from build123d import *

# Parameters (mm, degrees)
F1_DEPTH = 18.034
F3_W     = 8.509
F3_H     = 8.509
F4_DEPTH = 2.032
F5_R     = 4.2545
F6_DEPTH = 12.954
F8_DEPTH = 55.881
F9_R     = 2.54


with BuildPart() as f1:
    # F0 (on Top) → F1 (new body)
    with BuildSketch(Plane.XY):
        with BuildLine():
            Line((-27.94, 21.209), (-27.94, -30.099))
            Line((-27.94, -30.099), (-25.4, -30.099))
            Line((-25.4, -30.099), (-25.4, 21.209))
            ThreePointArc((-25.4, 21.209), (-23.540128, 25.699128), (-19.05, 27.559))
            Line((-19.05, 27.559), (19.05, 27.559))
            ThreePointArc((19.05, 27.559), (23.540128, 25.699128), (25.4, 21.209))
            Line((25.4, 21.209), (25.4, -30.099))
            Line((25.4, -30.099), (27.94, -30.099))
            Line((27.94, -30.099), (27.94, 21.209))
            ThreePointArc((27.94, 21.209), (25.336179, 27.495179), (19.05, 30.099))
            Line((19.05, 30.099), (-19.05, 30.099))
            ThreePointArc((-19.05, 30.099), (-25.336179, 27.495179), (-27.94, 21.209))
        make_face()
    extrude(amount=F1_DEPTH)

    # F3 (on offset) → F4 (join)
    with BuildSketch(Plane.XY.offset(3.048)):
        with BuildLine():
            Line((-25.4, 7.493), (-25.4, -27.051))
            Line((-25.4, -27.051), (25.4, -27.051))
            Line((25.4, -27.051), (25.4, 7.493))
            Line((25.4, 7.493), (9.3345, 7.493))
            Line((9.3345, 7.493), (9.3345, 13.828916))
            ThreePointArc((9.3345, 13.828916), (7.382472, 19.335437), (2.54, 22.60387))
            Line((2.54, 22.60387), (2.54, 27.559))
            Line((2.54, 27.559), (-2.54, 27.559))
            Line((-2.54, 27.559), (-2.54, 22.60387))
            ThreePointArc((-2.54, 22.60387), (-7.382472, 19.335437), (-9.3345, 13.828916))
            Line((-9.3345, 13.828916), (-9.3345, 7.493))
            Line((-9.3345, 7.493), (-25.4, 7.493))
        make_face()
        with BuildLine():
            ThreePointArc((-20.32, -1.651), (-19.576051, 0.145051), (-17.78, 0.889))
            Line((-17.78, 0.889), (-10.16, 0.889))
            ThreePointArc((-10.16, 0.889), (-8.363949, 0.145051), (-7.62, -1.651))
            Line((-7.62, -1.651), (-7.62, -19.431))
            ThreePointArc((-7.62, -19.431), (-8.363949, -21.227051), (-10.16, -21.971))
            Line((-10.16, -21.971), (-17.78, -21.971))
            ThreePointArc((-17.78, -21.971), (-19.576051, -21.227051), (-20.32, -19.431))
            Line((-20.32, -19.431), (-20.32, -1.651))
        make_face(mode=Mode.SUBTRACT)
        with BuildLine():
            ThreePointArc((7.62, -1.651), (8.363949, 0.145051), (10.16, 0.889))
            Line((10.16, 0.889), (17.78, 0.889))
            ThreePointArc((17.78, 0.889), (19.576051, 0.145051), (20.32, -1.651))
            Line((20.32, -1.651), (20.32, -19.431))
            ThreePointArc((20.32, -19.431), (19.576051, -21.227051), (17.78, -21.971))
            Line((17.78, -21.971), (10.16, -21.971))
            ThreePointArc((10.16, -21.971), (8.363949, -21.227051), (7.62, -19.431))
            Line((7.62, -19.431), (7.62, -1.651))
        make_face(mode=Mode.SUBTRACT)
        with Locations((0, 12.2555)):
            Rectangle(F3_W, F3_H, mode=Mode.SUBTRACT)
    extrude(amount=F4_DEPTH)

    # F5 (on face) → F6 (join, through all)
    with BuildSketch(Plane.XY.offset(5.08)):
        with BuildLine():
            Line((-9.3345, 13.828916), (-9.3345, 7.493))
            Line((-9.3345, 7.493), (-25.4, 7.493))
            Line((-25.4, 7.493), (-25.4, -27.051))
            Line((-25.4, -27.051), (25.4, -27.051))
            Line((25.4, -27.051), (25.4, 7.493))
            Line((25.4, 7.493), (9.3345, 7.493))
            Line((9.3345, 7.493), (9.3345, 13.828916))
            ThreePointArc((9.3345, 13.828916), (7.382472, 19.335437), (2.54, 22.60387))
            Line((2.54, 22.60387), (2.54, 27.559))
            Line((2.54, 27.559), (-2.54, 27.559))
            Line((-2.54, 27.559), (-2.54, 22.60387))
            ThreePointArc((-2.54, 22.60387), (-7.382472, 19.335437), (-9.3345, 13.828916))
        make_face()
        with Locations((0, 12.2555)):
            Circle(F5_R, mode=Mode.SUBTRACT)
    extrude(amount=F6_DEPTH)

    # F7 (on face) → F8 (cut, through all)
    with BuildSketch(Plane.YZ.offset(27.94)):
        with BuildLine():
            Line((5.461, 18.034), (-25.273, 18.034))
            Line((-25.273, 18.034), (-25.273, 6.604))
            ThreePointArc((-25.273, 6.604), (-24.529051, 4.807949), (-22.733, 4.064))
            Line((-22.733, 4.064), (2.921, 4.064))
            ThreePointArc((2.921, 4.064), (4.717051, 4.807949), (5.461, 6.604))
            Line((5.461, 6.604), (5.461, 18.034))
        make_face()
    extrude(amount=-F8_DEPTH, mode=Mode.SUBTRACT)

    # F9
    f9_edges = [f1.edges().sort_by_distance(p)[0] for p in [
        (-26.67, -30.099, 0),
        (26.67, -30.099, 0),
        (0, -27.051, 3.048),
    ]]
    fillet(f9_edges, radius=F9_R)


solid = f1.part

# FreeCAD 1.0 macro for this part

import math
import FreeCAD as App
import Part
import Sketcher

V = App.Vector
Q = App.Units.Quantity


def edges_at(feature, points):
    """Names of the edges that pass closest to the given points."""
    edges = feature.Shape.Edges
    near = lambda p: min(range(len(edges)), key=lambda i: edges[i].distToShape(Part.Vertex(*p))[0])
    return sorted({f"Edge{near(p) + 1}" for p in points})

doc = App.newDocument("Part")
body = doc.addObject("PartDesign::Body", "Body")

# Sketch on XY plane
sketch1 = body.newObject("Sketcher::SketchObject", "Sketch")
sketch1.AttachmentSupport = (doc.getObject("XY_Plane"), [""])
sketch1.MapMode = "FlatFace"
sketch1.addGeometry([
    Part.LineSegment(V(-27.9, 21.2, 0), V(-27.9, -30.1, 0)),  # 0
    Part.LineSegment(V(-27.9, -30.1, 0), V(-25.4, -30.1, 0)),  # 1
    Part.LineSegment(V(-25.4, -30.1, 0), V(-25.4, 21.2, 0)),  # 2
    Part.ArcOfCircle(Part.Circle(V(-19, 21.2, 0), V(0, 0, 1), 6.4), math.radians(90), math.radians(180)),  # 3
    Part.LineSegment(V(-19.1, 27.6, 0), V(19.1, 27.6, 0)),  # 4
    Part.ArcOfCircle(Part.Circle(V(19, 21.2, 0), V(0, 0, 1), 6.4), math.radians(0), math.radians(90)),  # 5
    Part.LineSegment(V(25.4, 21.2, 0), V(25.4, -30.1, 0)),  # 6
    Part.LineSegment(V(25.4, -30.1, 0), V(27.9, -30.1, 0)),  # 7
    Part.LineSegment(V(27.9, -30.1, 0), V(27.9, 21.2, 0)),  # 8
    Part.ArcOfCircle(Part.Circle(V(19, 21.2, 0), V(0, 0, 1), 8.9), math.radians(0), math.radians(90)),  # 9
    Part.LineSegment(V(19.1, 30.1, 0), V(-19.1, 30.1, 0)),  # 10
    Part.ArcOfCircle(Part.Circle(V(-19, 21.2, 0), V(0, 0, 1), 8.9), math.radians(90), math.radians(180)),  # 11
], False)
sketch1.addConstraint([
    Sketcher.Constraint("Coincident", 0, 2, 1, 1),
    Sketcher.Constraint("Coincident", 1, 2, 2, 1),
    Sketcher.Constraint("Tangent", 2, 2, 3, 2),
    Sketcher.Constraint("Tangent", 3, 1, 4, 1),
    Sketcher.Constraint("Tangent", 4, 2, 5, 2),
    Sketcher.Constraint("Tangent", 5, 1, 6, 1),
    Sketcher.Constraint("Coincident", 6, 2, 7, 1),
    Sketcher.Constraint("Coincident", 7, 2, 8, 1),
    Sketcher.Constraint("Tangent", 8, 2, 9, 1),
    Sketcher.Constraint("Tangent", 9, 2, 10, 1),
    Sketcher.Constraint("Tangent", 10, 2, 11, 1),
    Sketcher.Constraint("Tangent", 11, 2, 0, 1),
    Sketcher.Constraint("Vertical", 0),
    Sketcher.Constraint("Horizontal", 1),
    Sketcher.Constraint("Vertical", 2),
    Sketcher.Constraint("Horizontal", 4),
    Sketcher.Constraint("Vertical", 6),
    Sketcher.Constraint("Horizontal", 7),
    Sketcher.Constraint("Vertical", 8),
    Sketcher.Constraint("Horizontal", 10),
    Sketcher.Constraint("Coincident", 9, 3, 5, 3),
    Sketcher.Constraint("Coincident", 11, 3, 3, 3),
    Sketcher.Constraint("Equal", 3, 5),
    Sketcher.Constraint("Symmetric", 1, 2, 6, 2, -2),
    Sketcher.Constraint("Radius", 3, Q("0.25 in")),
    Sketcher.Constraint("Radius", 9, Q("0.35 in")),
    Sketcher.Constraint("DistanceX", 4, 1, 4, 2, Q("1.5 in")),
    Sketcher.Constraint("DistanceY", 0, 2, 0, 1, Q("2.02 in")),
    Sketcher.Constraint("DistanceY", -1, 1, 3, 3, Q("0.835 in")),
])
pad1 = body.newObject("PartDesign::Pad", "Pad")
pad1.Profile = sketch1
pad1.Length = Q("0.71 in")

# Sketch on XY plane
sketch2 = body.newObject("Sketcher::SketchObject", "Sketch001")
sketch2.AttachmentSupport = (doc.getObject("XY_Plane"), [""])
sketch2.MapMode = "FlatFace"
sketch2.AttachmentOffset = App.Placement(V(0, 0, 0.12 * 25.4), App.Rotation())
sketch2.addGeometry([
    Part.LineSegment(V(-25.4, 7.5, 0), V(-25.4, -27.1, 0)),  # 0
    Part.LineSegment(V(-25.4, -27.1, 0), V(25.4, -27.1, 0)),  # 1
    Part.LineSegment(V(25.4, -27.1, 0), V(25.4, 7.5, 0)),  # 2
    Part.LineSegment(V(25.4, 7.5, 0), V(9.3, 7.5, 0)),  # 3
    Part.LineSegment(V(9.3, 7.5, 0), V(9.3, 13.8, 0)),  # 4
    Part.ArcOfCircle(Part.Circle(V(0, 13.6, 0), V(0, 0, 1), 9.3), math.radians(1), math.radians(74)),  # 5
    Part.LineSegment(V(2.5, 22.6, 0), V(2.5, 27.6, 0)),  # 6
    Part.LineSegment(V(2.5, 27.6, 0), V(-2.5, 27.6, 0)),  # 7
    Part.LineSegment(V(-2.5, 27.6, 0), V(-2.5, 22.6, 0)),  # 8
    Part.ArcOfCircle(Part.Circle(V(0, 13.6, 0), V(0, 0, 1), 9.3), math.radians(106), math.radians(179)),  # 9
    Part.LineSegment(V(-9.3, 13.8, 0), V(-9.3, 7.5, 0)),  # 10
    Part.LineSegment(V(-9.3, 7.5, 0), V(-25.4, 7.5, 0)),  # 11
    Part.LineSegment(V(-20.3, -19.4, 0), V(-20.3, -1.7, 0)),  # 12
    Part.ArcOfCircle(Part.Circle(V(-17.8, -1.7, 0), V(0, 0, 1), 2.5), math.radians(90), math.radians(180)),  # 13
    Part.LineSegment(V(-17.8, 0.9, 0), V(-10.2, 0.9, 0)),  # 14
    Part.ArcOfCircle(Part.Circle(V(-10.2, -1.7, 0), V(0, 0, 1), 2.5), math.radians(0), math.radians(90)),  # 15
    Part.LineSegment(V(-7.6, -1.7, 0), V(-7.6, -19.4, 0)),  # 16
    Part.ArcOfCircle(Part.Circle(V(-10.2, -19.4, 0), V(0, 0, 1), 2.5), math.radians(-90), math.radians(0)),  # 17
    Part.LineSegment(V(-10.2, -22, 0), V(-17.8, -22, 0)),  # 18
    Part.ArcOfCircle(Part.Circle(V(-17.8, -19.4, 0), V(0, 0, 1), 2.5), math.radians(-180), math.radians(-90)),  # 19
    Part.LineSegment(V(7.6, -19.4, 0), V(7.6, -1.7, 0)),  # 20
    Part.ArcOfCircle(Part.Circle(V(10.2, -1.7, 0), V(0, 0, 1), 2.5), math.radians(90), math.radians(180)),  # 21
    Part.LineSegment(V(10.2, 0.9, 0), V(17.8, 0.9, 0)),  # 22
    Part.ArcOfCircle(Part.Circle(V(17.8, -1.7, 0), V(0, 0, 1), 2.5), math.radians(0), math.radians(90)),  # 23
    Part.LineSegment(V(20.3, -1.7, 0), V(20.3, -19.4, 0)),  # 24
    Part.ArcOfCircle(Part.Circle(V(17.8, -19.4, 0), V(0, 0, 1), 2.5), math.radians(-90), math.radians(0)),  # 25
    Part.LineSegment(V(17.8, -22, 0), V(10.2, -22, 0)),  # 26
    Part.ArcOfCircle(Part.Circle(V(10.2, -19.4, 0), V(0, 0, 1), 2.5), math.radians(-180), math.radians(-90)),  # 27
    Part.LineSegment(V(4.3, 8, 0), V(-4.3, 8, 0)),  # 28
    Part.LineSegment(V(-4.3, 8, 0), V(-4.3, 16.5, 0)),  # 29
    Part.LineSegment(V(-4.3, 16.5, 0), V(4.3, 16.5, 0)),  # 30
    Part.LineSegment(V(4.3, 16.5, 0), V(4.3, 8, 0)),  # 31
], False)
sketch2.addConstraint([
    Sketcher.Constraint("Coincident", 0, 2, 1, 1),
    Sketcher.Constraint("Coincident", 1, 2, 2, 1),
    Sketcher.Constraint("Coincident", 2, 2, 3, 1),
    Sketcher.Constraint("Coincident", 3, 2, 4, 1),
    Sketcher.Constraint("Coincident", 4, 2, 5, 1),
    Sketcher.Constraint("Coincident", 5, 2, 6, 1),
    Sketcher.Constraint("Coincident", 6, 2, 7, 1),
    Sketcher.Constraint("Coincident", 7, 2, 8, 1),
    Sketcher.Constraint("Coincident", 8, 2, 9, 1),
    Sketcher.Constraint("Coincident", 9, 2, 10, 1),
    Sketcher.Constraint("Coincident", 10, 2, 11, 1),
    Sketcher.Constraint("Coincident", 11, 2, 0, 1),
    Sketcher.Constraint("Tangent", 12, 2, 13, 2),
    Sketcher.Constraint("Tangent", 13, 1, 14, 1),
    Sketcher.Constraint("Tangent", 14, 2, 15, 2),
    Sketcher.Constraint("Tangent", 15, 1, 16, 1),
    Sketcher.Constraint("Tangent", 16, 2, 17, 2),
    Sketcher.Constraint("Tangent", 17, 1, 18, 1),
    Sketcher.Constraint("Tangent", 18, 2, 19, 2),
    Sketcher.Constraint("Tangent", 19, 1, 12, 1),
    Sketcher.Constraint("Tangent", 20, 2, 21, 2),
    Sketcher.Constraint("Tangent", 21, 1, 22, 1),
    Sketcher.Constraint("Tangent", 22, 2, 23, 2),
    Sketcher.Constraint("Tangent", 23, 1, 24, 1),
    Sketcher.Constraint("Tangent", 24, 2, 25, 2),
    Sketcher.Constraint("Tangent", 25, 1, 26, 1),
    Sketcher.Constraint("Tangent", 26, 2, 27, 2),
    Sketcher.Constraint("Tangent", 27, 1, 20, 1),
    Sketcher.Constraint("Coincident", 28, 2, 29, 1),
    Sketcher.Constraint("Coincident", 29, 2, 30, 1),
    Sketcher.Constraint("Coincident", 30, 2, 31, 1),
    Sketcher.Constraint("Coincident", 31, 2, 28, 1),
    Sketcher.Constraint("Vertical", 0),
    Sketcher.Constraint("Horizontal", 1),
    Sketcher.Constraint("Vertical", 2),
    Sketcher.Constraint("Horizontal", 3),
    Sketcher.Constraint("Vertical", 4),
    Sketcher.Constraint("Vertical", 6),
    Sketcher.Constraint("Horizontal", 7),
    Sketcher.Constraint("Vertical", 8),
    Sketcher.Constraint("Vertical", 10),
    Sketcher.Constraint("Horizontal", 11),
    Sketcher.Constraint("Vertical", 12),
    Sketcher.Constraint("Horizontal", 14),
    Sketcher.Constraint("Vertical", 16),
    Sketcher.Constraint("Horizontal", 18),
    Sketcher.Constraint("Vertical", 20),
    Sketcher.Constraint("Horizontal", 22),
    Sketcher.Constraint("Vertical", 24),
    Sketcher.Constraint("Horizontal", 26),
    Sketcher.Constraint("Horizontal", 28),
    Sketcher.Constraint("Vertical", 29),
    Sketcher.Constraint("Horizontal", 30),
    Sketcher.Constraint("Vertical", 31),
    Sketcher.Constraint("Coincident", 9, 3, 5, 3),
    Sketcher.Constraint("Equal", 5, 9),
    Sketcher.Constraint("Equal", 13, 15),
    Sketcher.Constraint("Equal", 15, 17),
    Sketcher.Constraint("Equal", 17, 19),
    Sketcher.Constraint("Equal", 19, 21),
    Sketcher.Constraint("Equal", 21, 23),
    Sketcher.Constraint("Equal", 23, 25),
    Sketcher.Constraint("Equal", 25, 27),
    Sketcher.Constraint("Symmetric", 15, 3, 21, 3, -2),
    Sketcher.Constraint("Symmetric", 19, 3, 25, 3, -2),
    Sketcher.Constraint("Symmetric", 5, 2, 8, 2, -2),
    Sketcher.Constraint("Symmetric", 3, 2, 10, 2, -2),
    Sketcher.Constraint("Equal", 3, 11),
    Sketcher.Constraint("Equal", 30, 29),
    Sketcher.Constraint("Radius", 13, Q("0.1 in")),
    Sketcher.Constraint("DistanceX", 1, 1, 1, 2, Q("2 in")),
    Sketcher.Constraint("DistanceX", 7, 2, 7, 1, Q("0.2 in")),
    Sketcher.Constraint("DistanceX", 14, 1, 14, 2, Q("0.3 in")),
    Sketcher.Constraint("DistanceY", 12, 1, 12, 2, Q("0.7 in")),
    Sketcher.Constraint("DistanceY", 0, 2, 13, 3, Q("1 in")),
    Sketcher.Constraint("DistanceY", 0, 2, 0, 1, Q("1.36 in")),
    Sketcher.Constraint("DistanceX", 13, 3, -1, 1, Q("0.7 in")),
    Sketcher.Constraint("DistanceX", 10, 2, 28, 2, Q("0.2 in")),
    Sketcher.Constraint("DistanceX", 30, 2, 4, 2, Q("0.2 in")),
    Sketcher.Constraint("DistanceX", 28, 2, 28, 1, Q("0.335 in")),
    Sketcher.Constraint("DistanceY", -1, 1, 29, 2, Q("0.65 in")),
    Sketcher.Constraint("DistanceY", 3, 2, 6, 2, Q("0.79 in")),
    Sketcher.Constraint("DistanceY", 10, 2, 28, 2, Q("0.02 in")),
    Sketcher.Constraint("Radius", 5, Q("9.336857 mm")),
    Sketcher.Constraint("DistanceY", 6, 1, 6, 2, Q("4.95513 mm")),
])
pad2 = body.newObject("PartDesign::Pad", "Pad001")
pad2.Profile = sketch2
pad2.Length = Q("0.08 in")

# Sketch on XY plane
sketch3 = body.newObject("Sketcher::SketchObject", "Sketch002")
sketch3.AttachmentSupport = (doc.getObject("XY_Plane"), [""])
sketch3.MapMode = "FlatFace"
sketch3.AttachmentOffset = App.Placement(V(0, 0, 0.2 * 25.4), App.Rotation())
sketch3.addGeometry([
    Part.LineSegment(V(-9.3, 13.8, 0), V(-9.3, 7.5, 0)),  # 0
    Part.LineSegment(V(-9.3, 7.5, 0), V(-25.4, 7.5, 0)),  # 1
    Part.LineSegment(V(-25.4, 7.5, 0), V(-25.4, -27.1, 0)),  # 2
    Part.LineSegment(V(-25.4, -27.1, 0), V(25.4, -27.1, 0)),  # 3
    Part.LineSegment(V(25.4, -27.1, 0), V(25.4, 7.5, 0)),  # 4
    Part.LineSegment(V(25.4, 7.5, 0), V(9.3, 7.5, 0)),  # 5
    Part.LineSegment(V(9.3, 7.5, 0), V(9.3, 13.8, 0)),  # 6
    Part.ArcOfCircle(Part.Circle(V(0, 13.6, 0), V(0, 0, 1), 9.3), math.radians(1), math.radians(74)),  # 7
    Part.LineSegment(V(2.5, 22.6, 0), V(2.5, 27.6, 0)),  # 8
    Part.LineSegment(V(2.5, 27.6, 0), V(-2.5, 27.6, 0)),  # 9
    Part.LineSegment(V(-2.5, 27.6, 0), V(-2.5, 22.6, 0)),  # 10
    Part.ArcOfCircle(Part.Circle(V(0, 13.6, 0), V(0, 0, 1), 9.3), math.radians(106), math.radians(179)),  # 11
    Part.Circle(V(0, 12.3, 0), V(0, 0, 1), 4.3),  # 12
], False)
sketch3.addConstraint([
    Sketcher.Constraint("Coincident", 0, 2, 1, 1),
    Sketcher.Constraint("Coincident", 1, 2, 2, 1),
    Sketcher.Constraint("Coincident", 2, 2, 3, 1),
    Sketcher.Constraint("Coincident", 3, 2, 4, 1),
    Sketcher.Constraint("Coincident", 4, 2, 5, 1),
    Sketcher.Constraint("Coincident", 5, 2, 6, 1),
    Sketcher.Constraint("Coincident", 6, 2, 7, 1),
    Sketcher.Constraint("Coincident", 7, 2, 8, 1),
    Sketcher.Constraint("Coincident", 8, 2, 9, 1),
    Sketcher.Constraint("Coincident", 9, 2, 10, 1),
    Sketcher.Constraint("Coincident", 10, 2, 11, 1),
    Sketcher.Constraint("Coincident", 11, 2, 0, 1),
    Sketcher.Constraint("Vertical", 0),
    Sketcher.Constraint("Horizontal", 1),
    Sketcher.Constraint("Vertical", 2),
    Sketcher.Constraint("Horizontal", 3),
    Sketcher.Constraint("Vertical", 4),
    Sketcher.Constraint("Horizontal", 5),
    Sketcher.Constraint("Vertical", 6),
    Sketcher.Constraint("Vertical", 8),
    Sketcher.Constraint("Horizontal", 9),
    Sketcher.Constraint("Vertical", 10),
    Sketcher.Constraint("Coincident", 11, 3, 7, 3),
    Sketcher.Constraint("Equal", 7, 11),
    Sketcher.Constraint("Symmetric", 1, 2, 4, 2, -2),
    Sketcher.Constraint("Symmetric", 7, 2, 10, 2, -2),
    Sketcher.Constraint("PointOnObject", 12, 3, -2),
    Sketcher.Constraint("Horizontal", 6, 2, 11, 2),
    Sketcher.Constraint("DistanceX", 3, 1, 3, 2, Q("2 in")),
    Sketcher.Constraint("Diameter", 12, Q("0.335 in")),
    Sketcher.Constraint("DistanceX", 9, 2, 9, 1, Q("0.2 in")),
    Sketcher.Constraint("DistanceY", 2, 2, 2, 1, Q("1.36 in")),
    Sketcher.Constraint("DistanceX", 1, 2, 1, 1, Q("0.6325 in")),
    Sketcher.Constraint("DistanceY", -1, 1, 0, 2, Q("0.295 in")),
    Sketcher.Constraint("DistanceY", -1, 1, 8, 2, Q("1.085 in")),
    Sketcher.Constraint("DistanceY", 0, 2, 12, 3, Q("0.1875 in")),
    Sketcher.Constraint("Radius", 7, Q("9.336857 mm")),
    Sketcher.Constraint("DistanceY", 8, 1, 8, 2, Q("4.95513 mm")),
])
pad3 = body.newObject("PartDesign::Pad", "Pad002")
pad3.Profile = sketch3
pad3.Length = Q("0.51 in")

# Sketch on YZ plane
sketch4 = body.newObject("Sketcher::SketchObject", "Sketch003")
sketch4.AttachmentSupport = (doc.getObject("YZ_Plane"), [""])
sketch4.MapMode = "FlatFace"
sketch4.AttachmentOffset = App.Placement(V(0, 0, 1.1 * 25.4), App.Rotation())
sketch4.addGeometry([
    Part.LineSegment(V(5.5, 18, 0), V(-25.3, 18, 0)),  # 0
    Part.LineSegment(V(-25.3, 18, 0), V(-25.3, 6.6, 0)),  # 1
    Part.ArcOfCircle(Part.Circle(V(-22.7, 6.6, 0), V(0, 0, 1), 2.5), math.radians(-180), math.radians(-90)),  # 2
    Part.LineSegment(V(-22.7, 4.1, 0), V(2.9, 4.1, 0)),  # 3
    Part.ArcOfCircle(Part.Circle(V(2.9, 6.6, 0), V(0, 0, 1), 2.5), math.radians(-90), math.radians(0)),  # 4
    Part.LineSegment(V(5.5, 6.6, 0), V(5.5, 18, 0)),  # 5
], False)
sketch4.addConstraint([
    Sketcher.Constraint("Coincident", 0, 2, 1, 1),
    Sketcher.Constraint("Tangent", 1, 2, 2, 1),
    Sketcher.Constraint("Tangent", 2, 2, 3, 1),
    Sketcher.Constraint("Tangent", 3, 2, 4, 1),
    Sketcher.Constraint("Tangent", 4, 2, 5, 1),
    Sketcher.Constraint("Coincident", 5, 2, 0, 1),
    Sketcher.Constraint("Horizontal", 0),
    Sketcher.Constraint("Vertical", 1),
    Sketcher.Constraint("Horizontal", 3),
    Sketcher.Constraint("Vertical", 5),
    Sketcher.Constraint("Equal", 2, 4),
    Sketcher.Constraint("Radius", 2, Q("0.1 in")),
    Sketcher.Constraint("DistanceX", 0, 2, 0, 1, Q("1.21 in")),
    Sketcher.Constraint("DistanceY", 1, 2, 1, 1, Q("0.45 in")),
    Sketcher.Constraint("DistanceY", -1, 1, 2, 3, Q("0.26 in")),
    Sketcher.Constraint("DistanceX", 2, 3, -1, 1, Q("0.895 in")),
])
pocket1 = body.newObject("PartDesign::Pocket", "Pocket")
pocket1.Profile = sketch4
pocket1.Type = "ThroughAll"
doc.recompute()

fillet = body.newObject("PartDesign::Fillet", "Fillet")
fillet.Base = (pocket1, edges_at(pocket1, [(-26.67, -30.099, 0), (26.67, -30.099, 0), (0, -27.051, 3.048)]))
fillet.Radius = Q("0.1 in")

doc.recompute()
